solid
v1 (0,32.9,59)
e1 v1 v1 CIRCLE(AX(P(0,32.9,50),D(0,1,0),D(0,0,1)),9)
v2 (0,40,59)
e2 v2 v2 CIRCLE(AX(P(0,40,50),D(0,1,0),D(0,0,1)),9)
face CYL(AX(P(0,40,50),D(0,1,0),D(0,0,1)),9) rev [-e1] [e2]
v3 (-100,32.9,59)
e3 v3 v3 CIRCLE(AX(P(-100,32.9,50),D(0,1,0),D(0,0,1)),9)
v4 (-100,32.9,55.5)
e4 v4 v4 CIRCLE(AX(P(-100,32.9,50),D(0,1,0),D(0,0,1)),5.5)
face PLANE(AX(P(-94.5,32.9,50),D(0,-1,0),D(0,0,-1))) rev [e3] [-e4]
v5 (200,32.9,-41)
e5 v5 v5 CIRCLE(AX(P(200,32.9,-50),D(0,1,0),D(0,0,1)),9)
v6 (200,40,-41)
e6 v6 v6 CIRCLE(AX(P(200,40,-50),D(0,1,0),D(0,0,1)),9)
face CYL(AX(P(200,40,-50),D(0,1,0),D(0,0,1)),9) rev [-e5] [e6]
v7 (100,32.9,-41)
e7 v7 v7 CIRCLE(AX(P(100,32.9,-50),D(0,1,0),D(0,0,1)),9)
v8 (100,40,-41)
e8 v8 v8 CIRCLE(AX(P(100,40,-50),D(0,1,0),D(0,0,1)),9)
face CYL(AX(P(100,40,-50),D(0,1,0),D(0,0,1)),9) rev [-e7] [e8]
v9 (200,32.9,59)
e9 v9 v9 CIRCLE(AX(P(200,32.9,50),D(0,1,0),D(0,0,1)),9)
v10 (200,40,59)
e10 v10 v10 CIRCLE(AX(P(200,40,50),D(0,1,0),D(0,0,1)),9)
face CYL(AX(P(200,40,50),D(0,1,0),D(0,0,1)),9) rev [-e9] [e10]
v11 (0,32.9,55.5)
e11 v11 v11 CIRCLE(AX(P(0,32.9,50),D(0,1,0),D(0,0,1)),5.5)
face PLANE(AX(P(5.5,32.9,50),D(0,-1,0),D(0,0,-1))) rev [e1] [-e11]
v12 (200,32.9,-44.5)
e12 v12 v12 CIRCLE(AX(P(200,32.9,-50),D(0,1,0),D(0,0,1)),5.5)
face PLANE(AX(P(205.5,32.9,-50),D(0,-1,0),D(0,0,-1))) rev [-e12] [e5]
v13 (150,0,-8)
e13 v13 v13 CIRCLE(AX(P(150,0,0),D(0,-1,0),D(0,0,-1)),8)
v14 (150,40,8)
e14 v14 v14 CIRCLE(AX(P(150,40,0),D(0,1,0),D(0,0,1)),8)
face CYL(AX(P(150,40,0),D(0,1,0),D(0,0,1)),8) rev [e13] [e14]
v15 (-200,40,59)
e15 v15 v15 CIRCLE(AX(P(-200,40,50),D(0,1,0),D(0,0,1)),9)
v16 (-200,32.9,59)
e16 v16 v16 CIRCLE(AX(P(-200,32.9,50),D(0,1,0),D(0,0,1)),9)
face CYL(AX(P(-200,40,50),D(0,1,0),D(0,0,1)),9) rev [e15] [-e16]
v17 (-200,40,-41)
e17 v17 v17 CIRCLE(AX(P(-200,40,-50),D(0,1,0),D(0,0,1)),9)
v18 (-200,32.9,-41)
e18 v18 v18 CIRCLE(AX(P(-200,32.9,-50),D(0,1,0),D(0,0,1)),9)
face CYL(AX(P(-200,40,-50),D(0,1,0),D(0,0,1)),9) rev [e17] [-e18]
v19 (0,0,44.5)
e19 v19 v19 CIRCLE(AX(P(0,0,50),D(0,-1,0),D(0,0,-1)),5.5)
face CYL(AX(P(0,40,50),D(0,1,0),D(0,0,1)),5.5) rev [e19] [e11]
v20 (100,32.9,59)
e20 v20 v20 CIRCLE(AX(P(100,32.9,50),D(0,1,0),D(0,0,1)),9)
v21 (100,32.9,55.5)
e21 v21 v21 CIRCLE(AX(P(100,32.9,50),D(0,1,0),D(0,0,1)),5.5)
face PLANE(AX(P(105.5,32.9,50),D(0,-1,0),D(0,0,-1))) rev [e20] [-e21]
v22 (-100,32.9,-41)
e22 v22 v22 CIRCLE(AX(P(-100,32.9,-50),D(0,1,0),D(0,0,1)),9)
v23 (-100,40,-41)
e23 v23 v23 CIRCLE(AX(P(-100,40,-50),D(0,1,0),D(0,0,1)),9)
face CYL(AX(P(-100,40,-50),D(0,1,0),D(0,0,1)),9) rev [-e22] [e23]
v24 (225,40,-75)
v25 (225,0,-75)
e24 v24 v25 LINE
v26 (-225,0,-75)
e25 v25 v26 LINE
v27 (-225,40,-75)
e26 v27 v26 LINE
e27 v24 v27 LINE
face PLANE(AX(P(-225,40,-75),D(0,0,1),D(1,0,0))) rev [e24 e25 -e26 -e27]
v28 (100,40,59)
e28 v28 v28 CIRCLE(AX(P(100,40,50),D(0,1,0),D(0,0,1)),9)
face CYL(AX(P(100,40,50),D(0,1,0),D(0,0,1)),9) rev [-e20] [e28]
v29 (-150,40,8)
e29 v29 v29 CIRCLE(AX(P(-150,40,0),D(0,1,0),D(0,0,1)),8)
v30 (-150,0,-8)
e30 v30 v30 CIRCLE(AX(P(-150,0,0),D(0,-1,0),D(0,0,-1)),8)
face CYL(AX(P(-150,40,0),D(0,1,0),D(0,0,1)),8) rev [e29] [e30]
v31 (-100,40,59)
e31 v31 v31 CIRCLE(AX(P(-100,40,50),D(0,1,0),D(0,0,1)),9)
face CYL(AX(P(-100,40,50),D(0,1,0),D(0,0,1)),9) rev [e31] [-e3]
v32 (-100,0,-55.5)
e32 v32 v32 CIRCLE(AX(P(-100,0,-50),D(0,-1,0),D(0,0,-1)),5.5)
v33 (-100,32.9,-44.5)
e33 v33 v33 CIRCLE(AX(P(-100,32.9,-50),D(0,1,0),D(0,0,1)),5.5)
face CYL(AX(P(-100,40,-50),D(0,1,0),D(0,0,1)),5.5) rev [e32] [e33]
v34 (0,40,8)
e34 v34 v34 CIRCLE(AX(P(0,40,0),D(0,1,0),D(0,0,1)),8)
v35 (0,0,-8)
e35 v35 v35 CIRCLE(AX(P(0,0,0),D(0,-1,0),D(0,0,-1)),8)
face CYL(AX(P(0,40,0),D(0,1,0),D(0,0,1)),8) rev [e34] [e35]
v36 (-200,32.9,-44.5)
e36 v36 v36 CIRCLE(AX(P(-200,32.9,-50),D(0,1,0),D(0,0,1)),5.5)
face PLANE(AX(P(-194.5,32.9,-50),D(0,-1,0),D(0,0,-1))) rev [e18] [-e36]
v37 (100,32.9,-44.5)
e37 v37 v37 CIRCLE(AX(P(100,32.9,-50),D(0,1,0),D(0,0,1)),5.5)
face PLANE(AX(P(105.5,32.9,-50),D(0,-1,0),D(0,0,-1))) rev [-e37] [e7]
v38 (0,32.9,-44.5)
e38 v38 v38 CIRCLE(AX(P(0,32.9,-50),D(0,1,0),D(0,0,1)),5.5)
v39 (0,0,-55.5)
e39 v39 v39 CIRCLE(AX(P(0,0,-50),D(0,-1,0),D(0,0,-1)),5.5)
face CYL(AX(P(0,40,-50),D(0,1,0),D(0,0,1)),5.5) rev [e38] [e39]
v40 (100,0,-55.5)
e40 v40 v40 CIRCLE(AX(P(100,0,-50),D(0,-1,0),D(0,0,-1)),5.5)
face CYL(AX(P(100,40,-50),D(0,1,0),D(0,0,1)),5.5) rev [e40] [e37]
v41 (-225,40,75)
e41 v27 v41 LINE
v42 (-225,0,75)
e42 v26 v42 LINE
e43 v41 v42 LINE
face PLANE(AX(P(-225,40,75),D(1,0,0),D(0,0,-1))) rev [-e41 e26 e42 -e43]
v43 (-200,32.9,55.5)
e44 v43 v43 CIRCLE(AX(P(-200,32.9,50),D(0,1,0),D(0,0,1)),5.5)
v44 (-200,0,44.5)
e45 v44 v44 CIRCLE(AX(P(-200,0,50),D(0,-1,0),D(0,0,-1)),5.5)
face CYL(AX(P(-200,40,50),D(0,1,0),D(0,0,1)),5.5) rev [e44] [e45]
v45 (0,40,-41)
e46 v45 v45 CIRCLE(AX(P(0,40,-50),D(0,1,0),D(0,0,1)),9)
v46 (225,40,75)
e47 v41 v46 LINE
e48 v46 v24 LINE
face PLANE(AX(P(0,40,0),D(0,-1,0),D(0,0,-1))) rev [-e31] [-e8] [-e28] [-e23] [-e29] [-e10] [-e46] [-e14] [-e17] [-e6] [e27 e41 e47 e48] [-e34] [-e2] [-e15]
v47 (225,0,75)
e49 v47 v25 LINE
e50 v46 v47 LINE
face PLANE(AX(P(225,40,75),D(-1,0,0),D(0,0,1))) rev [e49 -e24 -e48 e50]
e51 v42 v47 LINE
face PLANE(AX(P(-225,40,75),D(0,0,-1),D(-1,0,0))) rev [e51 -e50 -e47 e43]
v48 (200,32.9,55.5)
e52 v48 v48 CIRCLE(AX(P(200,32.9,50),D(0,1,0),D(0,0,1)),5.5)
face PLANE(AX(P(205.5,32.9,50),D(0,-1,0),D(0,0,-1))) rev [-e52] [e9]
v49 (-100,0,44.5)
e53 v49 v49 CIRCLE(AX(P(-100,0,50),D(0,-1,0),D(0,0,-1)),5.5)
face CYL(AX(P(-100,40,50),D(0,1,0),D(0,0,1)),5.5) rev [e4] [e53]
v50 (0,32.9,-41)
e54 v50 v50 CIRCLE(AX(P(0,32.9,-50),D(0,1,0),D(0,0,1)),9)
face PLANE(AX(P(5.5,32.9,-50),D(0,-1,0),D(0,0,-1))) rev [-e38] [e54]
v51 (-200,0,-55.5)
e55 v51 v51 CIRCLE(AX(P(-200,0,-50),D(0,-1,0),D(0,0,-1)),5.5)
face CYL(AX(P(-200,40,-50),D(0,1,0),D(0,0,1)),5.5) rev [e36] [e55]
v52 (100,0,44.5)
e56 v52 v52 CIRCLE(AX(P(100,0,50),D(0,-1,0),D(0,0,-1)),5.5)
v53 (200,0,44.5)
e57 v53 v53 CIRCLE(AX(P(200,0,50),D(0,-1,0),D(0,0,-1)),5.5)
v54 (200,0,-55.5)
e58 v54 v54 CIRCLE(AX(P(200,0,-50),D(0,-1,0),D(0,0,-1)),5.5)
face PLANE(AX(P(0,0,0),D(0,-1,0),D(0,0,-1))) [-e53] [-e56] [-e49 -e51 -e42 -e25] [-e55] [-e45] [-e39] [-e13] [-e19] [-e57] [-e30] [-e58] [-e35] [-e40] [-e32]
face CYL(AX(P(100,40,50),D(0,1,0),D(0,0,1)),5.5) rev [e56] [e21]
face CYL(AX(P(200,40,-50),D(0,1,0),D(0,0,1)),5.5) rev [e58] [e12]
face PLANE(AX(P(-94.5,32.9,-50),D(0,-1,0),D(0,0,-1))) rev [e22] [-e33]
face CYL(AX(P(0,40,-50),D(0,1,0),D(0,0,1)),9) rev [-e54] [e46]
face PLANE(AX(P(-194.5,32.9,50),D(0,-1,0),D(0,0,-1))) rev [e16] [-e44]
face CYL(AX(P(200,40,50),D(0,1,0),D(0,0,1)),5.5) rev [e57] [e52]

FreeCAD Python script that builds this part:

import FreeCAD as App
import Part
import Sketcher

V = App.Vector


def add_polygon(sketch, points):
    """Adds a closed chain of lines whose ends are joined by coincident constraints."""
    first, n = sketch.GeometryCount, len(points)
    for a, b in zip(points, points[1:] + points[:1]):
        sketch.addGeometry(Part.LineSegment(App.Vector(*a, 0), App.Vector(*b, 0)), False)
    for i in range(n):
        sketch.addConstraint(Sketcher.Constraint("Coincident", first + i, 2, first + (i + 1) % n, 1))

doc = App.newDocument("Part")
body = doc.addObject("PartDesign::Body", "Body")

# Sketch on XZ plane
sketch1 = doc.addObject("Sketcher::SketchObject", "Sketch")
body.addObject(sketch1)
sketch1.AttachmentSupport = (doc.XZ_Plane, [""])
sketch1.MapMode = "FlatFace"
add_polygon(sketch1, [(-225, -75), (-225, 75), (225, 75), (225, -75)])  # lines 0-3
sketch1.addConstraint(Sketcher.Constraint("Vertical", 0))
sketch1.addConstraint(Sketcher.Constraint("Horizontal", 1))
sketch1.addConstraint(Sketcher.Constraint("Vertical", 2))
sketch1.addConstraint(Sketcher.Constraint("Horizontal", 3))
sketch1.addConstraint(Sketcher.Constraint("Symmetric", 0, 2, 2, 2, -1, 1))
sketch1.addConstraint(Sketcher.Constraint("DistanceX", 1, 1, 1, 2, 450.0))
sketch1.addConstraint(Sketcher.Constraint("DistanceY", 0, 1, 0, 2, 150.0))
pad1 = doc.addObject("PartDesign::Pad", "Pad")
body.addObject(pad1)
pad1.Profile = sketch1
pad1.Length = 40
pad1.Reversed = True

# Sketch on XZ plane
sketch2 = doc.addObject("Sketcher::SketchObject", "Sketch001")
body.addObject(sketch2)
sketch2.AttachmentSupport = (doc.XZ_Plane, [""])
sketch2.MapMode = "FlatFace"
sketch2.AttachmentOffset = App.Placement(V(0, 0, -40), App.Rotation())
sketch2.addGeometry(Part.Circle(V(-200, -50, 0), V(0, 0, 1), 6), False)
sketch2.addGeometry(Part.Circle(V(-100, -50, 0), V(0, 0, 1), 6), False)
sketch2.addGeometry(Part.Circle(V(0, -50, 0), V(0, 0, 1), 6), False)
sketch2.addGeometry(Part.Circle(V(100, -50, 0), V(0, 0, 1), 6), False)
sketch2.addGeometry(Part.Circle(V(200, -50, 0), V(0, 0, 1), 6), False)
sketch2.addGeometry(Part.Circle(V(-100, 50, 0), V(0, 0, 1), 6), False)
sketch2.addGeometry(Part.Circle(V(0, 50, 0), V(0, 0, 1), 6), False)
sketch2.addGeometry(Part.Circle(V(100, 50, 0), V(0, 0, 1), 6), False)
sketch2.addGeometry(Part.Circle(V(200, 50, 0), V(0, 0, 1), 6), False)
sketch2.addGeometry(Part.Circle(V(-200, 50, 0), V(0, 0, 1), 6), False)
sketch2.addConstraint(Sketcher.Constraint("Equal", 0, 1))
sketch2.addConstraint(Sketcher.Constraint("Equal", 1, 2))
sketch2.addConstraint(Sketcher.Constraint("Equal", 2, 3))
sketch2.addConstraint(Sketcher.Constraint("Equal", 3, 4))
sketch2.addConstraint(Sketcher.Constraint("Equal", 4, 5))
sketch2.addConstraint(Sketcher.Constraint("Equal", 5, 6))
sketch2.addConstraint(Sketcher.Constraint("Equal", 6, 7))
sketch2.addConstraint(Sketcher.Constraint("Equal", 7, 8))
sketch2.addConstraint(Sketcher.Constraint("Equal", 8, 9))
sketch2.addConstraint(Sketcher.Constraint("Symmetric", 3, 3, 5, 3, -1, 1))
sketch2.addConstraint(Sketcher.Constraint("Symmetric", 2, 3, 6, 3, -1, 1))
sketch2.addConstraint(Sketcher.Constraint("Symmetric", 1, 3, 7, 3, -1, 1))
sketch2.addConstraint(Sketcher.Constraint("Symmetric", 0, 3, 8, 3, -1, 1))
sketch2.addConstraint(Sketcher.Constraint("Symmetric", 4, 3, 9, 3, -1, 1))
sketch2.addConstraint(Sketcher.Constraint("Symmetric", 1, 3, 3, 3, -2))
sketch2.addConstraint(Sketcher.Constraint("Symmetric", 0, 3, 4, 3, -2))
sketch2.addConstraint(Sketcher.Constraint("PointOnObject", 2, 3, -2))
sketch2.addConstraint(Sketcher.Constraint("Horizontal", 0, 3, 1, 3))
sketch2.addConstraint(Sketcher.Constraint("Horizontal", 1, 3, 2, 3))
sketch2.addConstraint(Sketcher.Constraint("Diameter", 0, 11.0))
sketch2.addConstraint(Sketcher.Constraint("DistanceX", 0, 3, -1, 1, 200.0))
sketch2.addConstraint(Sketcher.Constraint("DistanceY", 0, 3, -1, 1, 50.0))
sketch2.addConstraint(Sketcher.Constraint("DistanceX", 1, 3, -1, 1, 100.0))
doc.recompute()
hole = doc.addObject("PartDesign::Hole", "Hole")
body.addObject(hole)
hole.Profile = sketch2
hole.ThreadType = "None"
hole.Diameter = 11
hole.DepthType = "Dimension"
hole.Depth = 40
hole.DrillPoint = "Flat"
hole.HoleCutType = "Counterbore"
hole.HoleCutDiameter = 18
hole.HoleCutDepth = 7.1
hole.Reversed = True

# Sketch on XZ plane
sketch3 = doc.addObject("Sketcher::SketchObject", "Sketch002")
body.addObject(sketch3)
sketch3.AttachmentSupport = (doc.XZ_Plane, [""])
sketch3.MapMode = "FlatFace"
sketch3.AttachmentOffset = App.Placement(V(0, 0, -40), App.Rotation())
sketch3.addGeometry(Part.Circle(V(0, 0, 0), V(0, 0, 1), 8), False)
sketch3.addGeometry(Part.Circle(V(150, 0, 0), V(0, 0, 1), 8), False)
sketch3.addGeometry(Part.Circle(V(-150, 0, 0), V(0, 0, 1), 8), False)
sketch3.addConstraint(Sketcher.Constraint("Coincident", 0, 3, -1, 1))
sketch3.addConstraint(Sketcher.Constraint("Equal", 0, 1))
sketch3.addConstraint(Sketcher.Constraint("Equal", 1, 2))
sketch3.addConstraint(Sketcher.Constraint("Symmetric", 1, 3, 2, 3, -1, 1))
sketch3.addConstraint(Sketcher.Constraint("PointOnObject", 1, 3, -1))
sketch3.addConstraint(Sketcher.Constraint("Diameter", 0, 16.0))
sketch3.addConstraint(Sketcher.Constraint("DistanceX", -1, 1, 1, 3, 150.0))
doc.recompute()
hole2 = doc.addObject("PartDesign::Hole", "Hole001")
body.addObject(hole2)
hole2.Profile = sketch3
hole2.ThreadType = "None"
hole2.Diameter = 16
hole2.DepthType = "Dimension"
hole2.Depth = 40
hole2.DrillPoint = "Flat"
hole2.Reversed = True

doc.recompute()
